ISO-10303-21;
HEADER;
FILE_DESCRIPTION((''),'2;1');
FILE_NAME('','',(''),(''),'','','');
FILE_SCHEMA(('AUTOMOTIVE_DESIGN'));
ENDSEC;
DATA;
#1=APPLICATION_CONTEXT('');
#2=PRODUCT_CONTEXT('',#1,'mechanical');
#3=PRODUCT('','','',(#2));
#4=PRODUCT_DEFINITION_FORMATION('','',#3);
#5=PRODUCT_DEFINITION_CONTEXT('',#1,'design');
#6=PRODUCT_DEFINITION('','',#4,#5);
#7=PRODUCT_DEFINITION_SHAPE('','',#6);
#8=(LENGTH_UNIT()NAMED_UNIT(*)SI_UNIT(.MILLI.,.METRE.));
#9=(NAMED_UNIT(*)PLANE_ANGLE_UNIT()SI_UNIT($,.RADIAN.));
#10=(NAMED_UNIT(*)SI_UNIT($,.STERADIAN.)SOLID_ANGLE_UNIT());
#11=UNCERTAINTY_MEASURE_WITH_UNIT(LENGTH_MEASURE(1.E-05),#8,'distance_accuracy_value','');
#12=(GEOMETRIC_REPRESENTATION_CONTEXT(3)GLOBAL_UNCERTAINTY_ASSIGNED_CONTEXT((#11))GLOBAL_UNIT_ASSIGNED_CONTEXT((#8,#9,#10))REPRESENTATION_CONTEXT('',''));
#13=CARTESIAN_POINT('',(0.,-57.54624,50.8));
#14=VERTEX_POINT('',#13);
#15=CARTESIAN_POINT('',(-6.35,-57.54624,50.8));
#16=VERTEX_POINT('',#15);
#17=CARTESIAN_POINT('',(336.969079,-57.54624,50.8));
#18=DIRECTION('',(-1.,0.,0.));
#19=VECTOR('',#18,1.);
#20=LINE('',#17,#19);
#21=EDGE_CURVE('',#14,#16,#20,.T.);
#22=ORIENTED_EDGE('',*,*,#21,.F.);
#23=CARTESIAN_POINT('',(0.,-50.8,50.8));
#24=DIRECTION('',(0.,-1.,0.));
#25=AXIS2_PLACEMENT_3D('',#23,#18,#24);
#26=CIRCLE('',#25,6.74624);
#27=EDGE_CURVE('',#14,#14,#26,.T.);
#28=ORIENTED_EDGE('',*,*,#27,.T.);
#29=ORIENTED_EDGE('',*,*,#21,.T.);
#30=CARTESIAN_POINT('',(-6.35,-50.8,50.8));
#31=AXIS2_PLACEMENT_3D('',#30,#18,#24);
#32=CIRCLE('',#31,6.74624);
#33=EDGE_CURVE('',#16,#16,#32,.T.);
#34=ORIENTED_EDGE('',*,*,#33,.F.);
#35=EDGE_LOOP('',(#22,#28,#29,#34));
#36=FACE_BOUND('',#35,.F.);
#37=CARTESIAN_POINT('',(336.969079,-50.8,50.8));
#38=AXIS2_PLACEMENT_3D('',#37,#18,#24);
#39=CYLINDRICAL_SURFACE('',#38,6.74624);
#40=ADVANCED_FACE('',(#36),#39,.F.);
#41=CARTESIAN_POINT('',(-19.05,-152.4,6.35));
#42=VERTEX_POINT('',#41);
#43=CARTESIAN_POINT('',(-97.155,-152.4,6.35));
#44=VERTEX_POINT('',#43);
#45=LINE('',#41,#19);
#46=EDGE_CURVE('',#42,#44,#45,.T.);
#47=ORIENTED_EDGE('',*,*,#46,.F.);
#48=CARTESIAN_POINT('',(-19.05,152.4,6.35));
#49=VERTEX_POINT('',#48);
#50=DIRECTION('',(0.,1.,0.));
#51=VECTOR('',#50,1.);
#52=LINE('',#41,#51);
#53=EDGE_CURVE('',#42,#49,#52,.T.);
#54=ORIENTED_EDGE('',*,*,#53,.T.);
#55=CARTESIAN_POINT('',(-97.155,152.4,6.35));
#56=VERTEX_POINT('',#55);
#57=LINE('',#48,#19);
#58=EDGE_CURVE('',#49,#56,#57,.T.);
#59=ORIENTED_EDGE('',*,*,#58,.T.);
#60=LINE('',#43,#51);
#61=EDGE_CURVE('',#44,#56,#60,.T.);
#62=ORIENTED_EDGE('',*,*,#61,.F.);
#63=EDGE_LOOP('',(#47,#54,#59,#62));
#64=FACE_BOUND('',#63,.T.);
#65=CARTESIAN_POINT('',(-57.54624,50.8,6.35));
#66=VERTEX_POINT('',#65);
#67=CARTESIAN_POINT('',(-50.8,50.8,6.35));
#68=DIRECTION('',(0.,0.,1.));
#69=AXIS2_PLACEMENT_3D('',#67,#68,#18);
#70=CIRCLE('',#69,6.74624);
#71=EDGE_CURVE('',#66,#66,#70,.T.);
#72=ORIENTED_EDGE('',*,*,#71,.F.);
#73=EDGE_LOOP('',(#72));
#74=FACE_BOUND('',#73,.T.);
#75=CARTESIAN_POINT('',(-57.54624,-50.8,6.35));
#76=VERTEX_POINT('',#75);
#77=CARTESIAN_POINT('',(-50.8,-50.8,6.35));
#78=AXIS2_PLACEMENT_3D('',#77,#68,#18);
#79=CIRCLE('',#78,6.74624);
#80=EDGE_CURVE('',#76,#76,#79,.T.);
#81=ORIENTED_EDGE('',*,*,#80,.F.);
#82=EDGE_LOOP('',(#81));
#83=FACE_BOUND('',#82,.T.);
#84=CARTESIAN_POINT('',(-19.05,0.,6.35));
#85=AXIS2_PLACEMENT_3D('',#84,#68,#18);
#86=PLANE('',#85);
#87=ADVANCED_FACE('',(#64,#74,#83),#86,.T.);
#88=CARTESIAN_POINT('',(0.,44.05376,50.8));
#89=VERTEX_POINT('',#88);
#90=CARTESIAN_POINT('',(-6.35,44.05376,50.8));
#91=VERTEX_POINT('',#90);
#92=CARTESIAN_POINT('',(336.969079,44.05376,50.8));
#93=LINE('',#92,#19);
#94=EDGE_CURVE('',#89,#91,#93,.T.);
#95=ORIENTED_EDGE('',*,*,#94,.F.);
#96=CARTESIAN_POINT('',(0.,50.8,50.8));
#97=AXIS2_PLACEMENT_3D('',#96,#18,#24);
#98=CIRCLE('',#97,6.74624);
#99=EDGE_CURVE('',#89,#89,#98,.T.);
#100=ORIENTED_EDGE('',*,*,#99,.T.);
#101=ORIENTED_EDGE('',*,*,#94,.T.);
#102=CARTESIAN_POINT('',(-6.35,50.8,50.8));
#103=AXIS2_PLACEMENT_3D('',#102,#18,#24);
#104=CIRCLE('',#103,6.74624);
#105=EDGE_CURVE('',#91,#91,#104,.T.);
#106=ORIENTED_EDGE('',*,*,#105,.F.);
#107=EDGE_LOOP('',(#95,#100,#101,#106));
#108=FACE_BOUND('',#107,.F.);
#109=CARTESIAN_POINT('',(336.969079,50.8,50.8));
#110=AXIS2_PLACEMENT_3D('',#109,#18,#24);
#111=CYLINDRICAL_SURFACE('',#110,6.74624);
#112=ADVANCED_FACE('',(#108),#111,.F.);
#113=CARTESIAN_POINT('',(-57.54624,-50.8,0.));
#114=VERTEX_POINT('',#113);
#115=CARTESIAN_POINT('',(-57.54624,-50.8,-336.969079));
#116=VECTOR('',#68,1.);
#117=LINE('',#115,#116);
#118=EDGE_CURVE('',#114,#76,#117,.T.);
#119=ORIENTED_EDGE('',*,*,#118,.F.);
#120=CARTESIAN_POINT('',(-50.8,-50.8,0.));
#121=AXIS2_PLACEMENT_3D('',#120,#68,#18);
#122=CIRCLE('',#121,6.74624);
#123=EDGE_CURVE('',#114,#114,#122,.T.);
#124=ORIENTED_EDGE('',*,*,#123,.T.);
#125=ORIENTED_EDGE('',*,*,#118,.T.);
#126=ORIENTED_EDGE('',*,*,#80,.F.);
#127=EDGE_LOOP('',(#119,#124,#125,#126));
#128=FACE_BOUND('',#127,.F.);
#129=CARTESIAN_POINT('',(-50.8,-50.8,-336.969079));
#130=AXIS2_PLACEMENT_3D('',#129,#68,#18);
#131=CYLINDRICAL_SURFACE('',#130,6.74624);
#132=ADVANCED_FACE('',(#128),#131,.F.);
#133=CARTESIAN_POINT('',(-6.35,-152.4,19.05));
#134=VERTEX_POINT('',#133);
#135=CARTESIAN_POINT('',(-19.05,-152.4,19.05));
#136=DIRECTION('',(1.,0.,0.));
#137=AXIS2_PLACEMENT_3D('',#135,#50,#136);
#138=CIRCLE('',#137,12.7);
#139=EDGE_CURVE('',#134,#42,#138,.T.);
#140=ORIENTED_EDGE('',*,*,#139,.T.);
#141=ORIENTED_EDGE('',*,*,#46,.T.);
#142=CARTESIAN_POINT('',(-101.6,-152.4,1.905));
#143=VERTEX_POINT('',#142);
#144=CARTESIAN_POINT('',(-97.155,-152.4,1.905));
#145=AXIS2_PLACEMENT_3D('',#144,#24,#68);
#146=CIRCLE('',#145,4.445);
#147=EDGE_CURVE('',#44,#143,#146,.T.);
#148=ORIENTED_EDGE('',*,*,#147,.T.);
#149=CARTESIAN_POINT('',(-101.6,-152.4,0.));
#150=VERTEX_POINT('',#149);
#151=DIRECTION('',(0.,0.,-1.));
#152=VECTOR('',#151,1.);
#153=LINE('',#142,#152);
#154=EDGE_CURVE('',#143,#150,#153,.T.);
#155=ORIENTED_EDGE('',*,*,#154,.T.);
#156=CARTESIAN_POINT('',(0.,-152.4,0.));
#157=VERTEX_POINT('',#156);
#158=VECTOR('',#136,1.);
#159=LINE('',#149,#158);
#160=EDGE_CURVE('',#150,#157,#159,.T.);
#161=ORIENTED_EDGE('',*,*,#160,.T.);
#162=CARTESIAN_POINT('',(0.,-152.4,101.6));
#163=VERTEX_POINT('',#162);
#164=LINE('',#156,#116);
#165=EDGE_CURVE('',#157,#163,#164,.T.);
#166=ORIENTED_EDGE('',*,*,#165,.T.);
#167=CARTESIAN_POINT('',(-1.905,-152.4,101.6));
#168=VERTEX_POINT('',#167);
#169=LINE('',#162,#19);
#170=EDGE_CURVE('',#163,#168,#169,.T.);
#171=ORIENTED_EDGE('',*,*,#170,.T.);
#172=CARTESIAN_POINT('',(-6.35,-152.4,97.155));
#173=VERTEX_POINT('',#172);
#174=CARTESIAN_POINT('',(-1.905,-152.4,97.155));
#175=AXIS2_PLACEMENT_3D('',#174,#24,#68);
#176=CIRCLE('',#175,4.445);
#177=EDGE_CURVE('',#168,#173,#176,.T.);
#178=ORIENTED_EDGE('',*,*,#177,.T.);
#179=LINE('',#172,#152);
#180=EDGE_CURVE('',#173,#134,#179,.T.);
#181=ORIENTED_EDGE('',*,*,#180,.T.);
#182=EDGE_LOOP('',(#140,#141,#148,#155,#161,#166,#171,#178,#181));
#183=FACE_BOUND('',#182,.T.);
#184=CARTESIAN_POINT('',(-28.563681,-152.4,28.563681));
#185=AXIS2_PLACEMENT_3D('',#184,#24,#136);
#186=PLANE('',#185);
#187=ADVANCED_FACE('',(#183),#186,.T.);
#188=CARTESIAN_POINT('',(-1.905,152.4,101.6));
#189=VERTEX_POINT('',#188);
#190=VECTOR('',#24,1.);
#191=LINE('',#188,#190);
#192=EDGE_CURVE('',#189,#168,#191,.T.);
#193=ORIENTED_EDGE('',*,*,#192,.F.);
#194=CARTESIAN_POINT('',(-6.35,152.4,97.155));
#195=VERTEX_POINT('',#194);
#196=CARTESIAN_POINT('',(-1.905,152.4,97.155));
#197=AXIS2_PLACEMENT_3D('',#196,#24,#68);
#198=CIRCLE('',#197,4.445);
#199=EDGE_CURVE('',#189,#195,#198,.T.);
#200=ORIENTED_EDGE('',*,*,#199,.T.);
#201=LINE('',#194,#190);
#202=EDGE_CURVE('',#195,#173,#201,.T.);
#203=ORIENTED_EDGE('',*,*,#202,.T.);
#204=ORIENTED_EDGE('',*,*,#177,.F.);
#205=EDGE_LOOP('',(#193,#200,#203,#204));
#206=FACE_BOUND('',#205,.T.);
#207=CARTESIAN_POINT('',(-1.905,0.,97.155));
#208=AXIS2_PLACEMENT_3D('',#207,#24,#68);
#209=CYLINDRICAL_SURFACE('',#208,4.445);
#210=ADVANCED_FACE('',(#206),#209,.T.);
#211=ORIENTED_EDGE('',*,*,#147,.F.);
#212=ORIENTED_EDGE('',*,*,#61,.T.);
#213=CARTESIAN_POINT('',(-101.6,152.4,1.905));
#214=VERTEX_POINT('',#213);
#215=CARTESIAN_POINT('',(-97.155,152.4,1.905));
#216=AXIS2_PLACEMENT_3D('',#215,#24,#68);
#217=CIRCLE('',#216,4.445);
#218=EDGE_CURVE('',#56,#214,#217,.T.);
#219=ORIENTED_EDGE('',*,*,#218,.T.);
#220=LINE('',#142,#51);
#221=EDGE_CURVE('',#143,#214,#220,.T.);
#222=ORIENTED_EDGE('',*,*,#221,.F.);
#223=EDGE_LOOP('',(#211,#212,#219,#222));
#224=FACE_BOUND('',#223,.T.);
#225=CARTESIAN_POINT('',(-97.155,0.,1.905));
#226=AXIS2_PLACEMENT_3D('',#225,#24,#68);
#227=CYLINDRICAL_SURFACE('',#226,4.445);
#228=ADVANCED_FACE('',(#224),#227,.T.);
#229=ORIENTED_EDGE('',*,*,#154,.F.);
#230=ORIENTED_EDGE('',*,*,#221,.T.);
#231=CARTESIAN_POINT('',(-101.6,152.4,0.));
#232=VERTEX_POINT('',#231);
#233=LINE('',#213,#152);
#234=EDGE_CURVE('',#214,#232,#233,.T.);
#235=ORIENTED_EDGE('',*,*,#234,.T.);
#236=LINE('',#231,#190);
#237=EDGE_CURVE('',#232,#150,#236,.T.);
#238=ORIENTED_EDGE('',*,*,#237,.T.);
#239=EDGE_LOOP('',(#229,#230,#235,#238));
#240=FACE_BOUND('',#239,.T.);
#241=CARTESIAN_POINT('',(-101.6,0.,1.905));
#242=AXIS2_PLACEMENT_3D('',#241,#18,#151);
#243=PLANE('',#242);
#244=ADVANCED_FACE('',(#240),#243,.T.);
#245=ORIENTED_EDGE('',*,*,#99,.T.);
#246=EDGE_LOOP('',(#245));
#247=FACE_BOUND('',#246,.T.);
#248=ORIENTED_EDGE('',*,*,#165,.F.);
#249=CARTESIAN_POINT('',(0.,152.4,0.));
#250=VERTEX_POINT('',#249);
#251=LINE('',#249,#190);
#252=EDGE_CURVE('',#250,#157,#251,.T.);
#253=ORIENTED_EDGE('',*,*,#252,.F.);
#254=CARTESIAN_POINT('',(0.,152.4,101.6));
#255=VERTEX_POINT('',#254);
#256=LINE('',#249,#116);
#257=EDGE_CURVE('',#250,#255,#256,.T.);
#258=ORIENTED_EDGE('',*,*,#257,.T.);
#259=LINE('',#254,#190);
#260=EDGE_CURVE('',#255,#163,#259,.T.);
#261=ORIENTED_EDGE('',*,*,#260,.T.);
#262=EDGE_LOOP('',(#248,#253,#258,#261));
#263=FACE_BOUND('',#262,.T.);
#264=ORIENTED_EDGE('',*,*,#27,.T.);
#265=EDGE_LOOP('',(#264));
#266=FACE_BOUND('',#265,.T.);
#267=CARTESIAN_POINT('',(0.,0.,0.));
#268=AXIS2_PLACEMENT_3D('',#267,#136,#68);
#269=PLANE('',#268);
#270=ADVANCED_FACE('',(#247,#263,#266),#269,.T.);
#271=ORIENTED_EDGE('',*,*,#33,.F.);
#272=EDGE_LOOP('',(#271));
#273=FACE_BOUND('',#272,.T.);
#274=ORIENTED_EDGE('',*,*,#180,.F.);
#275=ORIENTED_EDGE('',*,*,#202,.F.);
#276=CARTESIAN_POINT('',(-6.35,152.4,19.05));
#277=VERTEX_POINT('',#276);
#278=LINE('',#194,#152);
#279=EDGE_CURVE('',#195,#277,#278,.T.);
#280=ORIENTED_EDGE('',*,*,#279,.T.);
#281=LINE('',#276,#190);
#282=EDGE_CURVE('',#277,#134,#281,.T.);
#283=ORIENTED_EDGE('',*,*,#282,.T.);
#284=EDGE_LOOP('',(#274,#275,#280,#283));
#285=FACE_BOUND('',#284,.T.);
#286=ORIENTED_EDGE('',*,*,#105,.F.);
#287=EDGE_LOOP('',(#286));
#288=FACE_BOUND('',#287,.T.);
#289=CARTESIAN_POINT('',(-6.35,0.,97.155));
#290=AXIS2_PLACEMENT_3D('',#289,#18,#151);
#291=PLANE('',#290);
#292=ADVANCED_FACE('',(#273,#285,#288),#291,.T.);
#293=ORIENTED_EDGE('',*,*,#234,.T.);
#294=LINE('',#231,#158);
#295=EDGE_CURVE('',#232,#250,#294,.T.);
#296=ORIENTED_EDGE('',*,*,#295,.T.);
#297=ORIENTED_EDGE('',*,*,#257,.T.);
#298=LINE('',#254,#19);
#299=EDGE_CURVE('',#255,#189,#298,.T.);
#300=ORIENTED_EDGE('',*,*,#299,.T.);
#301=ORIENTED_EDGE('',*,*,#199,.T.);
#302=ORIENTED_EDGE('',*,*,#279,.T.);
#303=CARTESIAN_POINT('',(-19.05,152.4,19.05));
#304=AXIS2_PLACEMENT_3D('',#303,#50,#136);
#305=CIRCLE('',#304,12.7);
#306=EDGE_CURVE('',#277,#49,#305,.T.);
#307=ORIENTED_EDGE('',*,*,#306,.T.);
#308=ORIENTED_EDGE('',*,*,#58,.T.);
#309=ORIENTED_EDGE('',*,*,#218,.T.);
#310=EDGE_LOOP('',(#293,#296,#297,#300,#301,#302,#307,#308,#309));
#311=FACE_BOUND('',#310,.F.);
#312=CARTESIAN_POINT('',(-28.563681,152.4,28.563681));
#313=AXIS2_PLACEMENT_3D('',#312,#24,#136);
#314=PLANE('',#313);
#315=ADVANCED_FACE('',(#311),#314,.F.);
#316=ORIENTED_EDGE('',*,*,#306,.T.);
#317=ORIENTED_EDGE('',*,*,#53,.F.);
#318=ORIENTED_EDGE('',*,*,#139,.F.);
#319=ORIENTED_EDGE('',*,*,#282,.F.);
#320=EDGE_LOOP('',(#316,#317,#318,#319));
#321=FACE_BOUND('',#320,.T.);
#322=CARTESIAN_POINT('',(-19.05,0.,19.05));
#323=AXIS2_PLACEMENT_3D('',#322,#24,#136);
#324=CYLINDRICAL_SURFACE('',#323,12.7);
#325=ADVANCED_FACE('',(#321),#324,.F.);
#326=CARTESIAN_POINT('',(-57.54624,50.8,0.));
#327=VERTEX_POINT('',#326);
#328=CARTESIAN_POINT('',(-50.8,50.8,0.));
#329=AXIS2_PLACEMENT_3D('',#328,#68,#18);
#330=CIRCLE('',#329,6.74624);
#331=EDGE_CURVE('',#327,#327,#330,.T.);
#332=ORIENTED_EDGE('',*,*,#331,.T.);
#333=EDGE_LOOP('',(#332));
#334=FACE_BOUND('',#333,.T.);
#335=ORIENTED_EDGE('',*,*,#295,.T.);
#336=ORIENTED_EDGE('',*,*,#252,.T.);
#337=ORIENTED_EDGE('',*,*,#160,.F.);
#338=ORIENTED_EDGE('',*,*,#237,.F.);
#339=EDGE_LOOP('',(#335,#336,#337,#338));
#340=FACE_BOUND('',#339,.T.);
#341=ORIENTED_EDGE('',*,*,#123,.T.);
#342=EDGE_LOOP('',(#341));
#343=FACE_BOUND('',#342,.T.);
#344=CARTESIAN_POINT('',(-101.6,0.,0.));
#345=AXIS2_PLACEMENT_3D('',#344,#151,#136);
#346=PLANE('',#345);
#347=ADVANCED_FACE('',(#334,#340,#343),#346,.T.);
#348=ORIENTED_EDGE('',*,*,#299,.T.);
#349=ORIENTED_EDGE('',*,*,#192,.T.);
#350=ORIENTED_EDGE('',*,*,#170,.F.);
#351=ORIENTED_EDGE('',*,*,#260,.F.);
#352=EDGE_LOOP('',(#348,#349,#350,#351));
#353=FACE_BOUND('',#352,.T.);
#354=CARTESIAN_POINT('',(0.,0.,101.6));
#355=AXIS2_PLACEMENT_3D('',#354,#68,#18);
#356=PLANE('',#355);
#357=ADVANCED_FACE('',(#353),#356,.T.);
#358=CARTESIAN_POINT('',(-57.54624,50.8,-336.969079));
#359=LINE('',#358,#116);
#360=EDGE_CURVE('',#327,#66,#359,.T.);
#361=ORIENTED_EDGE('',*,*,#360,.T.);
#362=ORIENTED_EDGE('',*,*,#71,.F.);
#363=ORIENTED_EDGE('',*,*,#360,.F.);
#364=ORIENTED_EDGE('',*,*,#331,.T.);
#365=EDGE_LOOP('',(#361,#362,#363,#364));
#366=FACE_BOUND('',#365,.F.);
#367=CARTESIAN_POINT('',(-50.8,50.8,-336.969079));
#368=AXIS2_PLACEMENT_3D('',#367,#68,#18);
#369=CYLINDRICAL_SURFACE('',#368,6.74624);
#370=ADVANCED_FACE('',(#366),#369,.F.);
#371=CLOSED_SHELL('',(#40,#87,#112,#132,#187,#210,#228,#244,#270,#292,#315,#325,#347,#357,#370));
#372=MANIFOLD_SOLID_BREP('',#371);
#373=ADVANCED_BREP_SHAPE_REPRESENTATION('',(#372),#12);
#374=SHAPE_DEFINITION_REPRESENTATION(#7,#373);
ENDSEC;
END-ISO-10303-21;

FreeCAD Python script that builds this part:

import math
import FreeCAD as App
import Part
import Sketcher

V = App.Vector
Q = App.Units.Quantity

doc = App.newDocument("Part")
params = doc.addObject("Spreadsheet::Sheet", "Params")
for row, (alias, value) in enumerate([
    ("sketch1_radius", "0.5 in"),
    ("sketch1_width", "4 in"),
    ("sketch1_radius2", "0.175 in"),
    ("sketch1_width2", "0.075 in"),
    ("pad1_length", "12 in"),
    ("hole_diameter", "0.5312 in"),
    ("hole2_diameter", "0.5312 in"),
], start=1):
    params.set(f"A{row}", alias)
    params.set(f"B{row}", "=" + value)
    params.setAlias(f"B{row}", alias)

body = doc.addObject("PartDesign::Body", "Body")

# Sketch on XZ plane
sketch1 = body.newObject("Sketcher::SketchObject", "Sketch")
sketch1.AttachmentSupport = (doc.getObject("XZ_Plane"), [""])
sketch1.MapMode = "FlatFace"
sketch1.addGeometry([
    Part.LineSegment(V(-101.6, 1.9, 0), V(-101.6, 0, 0)),  # 0
    Part.LineSegment(V(-101.6, 0, 0), V(0, 0, 0)),  # 1
    Part.LineSegment(V(0, 0, 0), V(0, 101.6, 0)),  # 2
    Part.LineSegment(V(0, 101.6, 0), V(-1.9, 101.6, 0)),  # 3
    Part.ArcOfCircle(Part.Circle(V(-1.9, 97.2, 0), V(0, 0, 1), 4.4), math.radians(90), math.radians(180)),  # 4
    Part.LineSegment(V(-6.3, 97.2, 0), V(-6.3, 19.1, 0)),  # 5
    Part.ArcOfCircle(Part.Circle(V(-19.1, 19.1, 0), V(0, 0, 1), 12.7), math.radians(-90), math.radians(0)),  # 6
    Part.LineSegment(V(-19.1, 6.3, 0), V(-97.2, 6.3, 0)),  # 7
    Part.ArcOfCircle(Part.Circle(V(-97.2, 1.9, 0), V(0, 0, 1), 4.4), math.radians(90), math.radians(180)),  # 8
], False)
sketch1.addConstraint([
    Sketcher.Constraint("Coincident", 0, 2, 1, 1),
    Sketcher.Constraint("Coincident", 1, 2, 2, 1),
    Sketcher.Constraint("Coincident", 2, 2, 3, 1),
    Sketcher.Constraint("Tangent", 3, 2, 4, 1),
    Sketcher.Constraint("Tangent", 4, 2, 5, 1),
    Sketcher.Constraint("Tangent", 5, 2, 6, 2),
    Sketcher.Constraint("Tangent", 6, 1, 7, 1),
    Sketcher.Constraint("Tangent", 7, 2, 8, 1),
    Sketcher.Constraint("Tangent", 8, 2, 0, 1),
    Sketcher.Constraint("Vertical", 0),
    Sketcher.Constraint("Horizontal", 1),
    Sketcher.Constraint("Vertical", 2),
    Sketcher.Constraint("Horizontal", 3),
    Sketcher.Constraint("Vertical", 5),
    Sketcher.Constraint("Horizontal", 7),
    Sketcher.Constraint("Coincident", 1, 2, -1, 1),
    Sketcher.Constraint("Equal", 4, 8),
    Sketcher.Constraint("Equal", 3, 0),
    Sketcher.Constraint("Equal", 1, 2),
    Sketcher.Constraint("Radius", 6, Q("0.5 in")),
    Sketcher.Constraint("DistanceX", 1, 1, 1, 2, Q("4 in")),
    Sketcher.Constraint("Radius", 4, Q("0.175 in")),
    Sketcher.Constraint("DistanceX", 3, 2, 3, 1, Q("0.075 in")),
])
sketch1.setExpression("Constraints[19]", "Params.sketch1_radius")
sketch1.setExpression("Constraints[20]", "Params.sketch1_width")
sketch1.setExpression("Constraints[21]", "Params.sketch1_radius2")
sketch1.setExpression("Constraints[22]", "Params.sketch1_width2")
pad1 = body.newObject("PartDesign::Pad", "Pad")
pad1.Profile = sketch1
pad1.setExpression("Length", "Params.pad1_length")
pad1.Midplane = True

# Sketch on YZ plane
sketch2 = body.newObject("Sketcher::SketchObject", "Sketch001")
sketch2.AttachmentSupport = (doc.getObject("YZ_Plane"), [""])
sketch2.MapMode = "FlatFace"
sketch2.addGeometry([
    Part.Circle(V(-51, 51, 0), V(0, 0, 1), 7),
    Part.Circle(V(51, 51, 0), V(0, 0, 1), 7),
], False)
sketch2.addConstraint([
    Sketcher.Constraint("Equal", 0, 1),
    Sketcher.Constraint("Symmetric", 0, 3, 1, 3, -2),
    Sketcher.Constraint("DistanceX", 0, 3, -1, 1, Q("2 in")),
    Sketcher.Constraint("DistanceY", -1, 1, 0, 3, Q("2 in")),
    Sketcher.Constraint("Diameter", 0, Q("0.5312 in")),
])
doc.recompute()
hole = body.newObject("PartDesign::Hole", "Hole")
hole.Profile = sketch2
hole.ThreadType = "None"
hole.setExpression("Diameter", "Params.hole_diameter")
hole.DepthType = "ThroughAll"

# Sketch on XY plane
sketch3 = body.newObject("Sketcher::SketchObject", "Sketch002")
sketch3.AttachmentSupport = (doc.getObject("XY_Plane"), [""])
sketch3.MapMode = "FlatFace"
sketch3.addGeometry([
    Part.Circle(V(-51, -51, 0), V(0, 0, 1), 7),
    Part.Circle(V(-51, 51, 0), V(0, 0, 1), 7),
], False)
sketch3.addConstraint([
    Sketcher.Constraint("Equal", 0, 1),
    Sketcher.Constraint("Symmetric", 0, 3, 1, 3, -1),
    Sketcher.Constraint("DistanceX", 0, 3, -1, 1, Q("2 in")),
    Sketcher.Constraint("DistanceY", 0, 3, -1, 1, Q("2 in")),
    Sketcher.Constraint("Diameter", 0, Q("0.5312 in")),
])
doc.recompute()
hole2 = body.newObject("PartDesign::Hole", "Hole001")
hole2.Profile = sketch3
hole2.ThreadType = "None"
hole2.setExpression("Diameter", "Params.hole2_diameter")
hole2.DepthType = "ThroughAll"
hole2.Reversed = True

doc.recompute()
